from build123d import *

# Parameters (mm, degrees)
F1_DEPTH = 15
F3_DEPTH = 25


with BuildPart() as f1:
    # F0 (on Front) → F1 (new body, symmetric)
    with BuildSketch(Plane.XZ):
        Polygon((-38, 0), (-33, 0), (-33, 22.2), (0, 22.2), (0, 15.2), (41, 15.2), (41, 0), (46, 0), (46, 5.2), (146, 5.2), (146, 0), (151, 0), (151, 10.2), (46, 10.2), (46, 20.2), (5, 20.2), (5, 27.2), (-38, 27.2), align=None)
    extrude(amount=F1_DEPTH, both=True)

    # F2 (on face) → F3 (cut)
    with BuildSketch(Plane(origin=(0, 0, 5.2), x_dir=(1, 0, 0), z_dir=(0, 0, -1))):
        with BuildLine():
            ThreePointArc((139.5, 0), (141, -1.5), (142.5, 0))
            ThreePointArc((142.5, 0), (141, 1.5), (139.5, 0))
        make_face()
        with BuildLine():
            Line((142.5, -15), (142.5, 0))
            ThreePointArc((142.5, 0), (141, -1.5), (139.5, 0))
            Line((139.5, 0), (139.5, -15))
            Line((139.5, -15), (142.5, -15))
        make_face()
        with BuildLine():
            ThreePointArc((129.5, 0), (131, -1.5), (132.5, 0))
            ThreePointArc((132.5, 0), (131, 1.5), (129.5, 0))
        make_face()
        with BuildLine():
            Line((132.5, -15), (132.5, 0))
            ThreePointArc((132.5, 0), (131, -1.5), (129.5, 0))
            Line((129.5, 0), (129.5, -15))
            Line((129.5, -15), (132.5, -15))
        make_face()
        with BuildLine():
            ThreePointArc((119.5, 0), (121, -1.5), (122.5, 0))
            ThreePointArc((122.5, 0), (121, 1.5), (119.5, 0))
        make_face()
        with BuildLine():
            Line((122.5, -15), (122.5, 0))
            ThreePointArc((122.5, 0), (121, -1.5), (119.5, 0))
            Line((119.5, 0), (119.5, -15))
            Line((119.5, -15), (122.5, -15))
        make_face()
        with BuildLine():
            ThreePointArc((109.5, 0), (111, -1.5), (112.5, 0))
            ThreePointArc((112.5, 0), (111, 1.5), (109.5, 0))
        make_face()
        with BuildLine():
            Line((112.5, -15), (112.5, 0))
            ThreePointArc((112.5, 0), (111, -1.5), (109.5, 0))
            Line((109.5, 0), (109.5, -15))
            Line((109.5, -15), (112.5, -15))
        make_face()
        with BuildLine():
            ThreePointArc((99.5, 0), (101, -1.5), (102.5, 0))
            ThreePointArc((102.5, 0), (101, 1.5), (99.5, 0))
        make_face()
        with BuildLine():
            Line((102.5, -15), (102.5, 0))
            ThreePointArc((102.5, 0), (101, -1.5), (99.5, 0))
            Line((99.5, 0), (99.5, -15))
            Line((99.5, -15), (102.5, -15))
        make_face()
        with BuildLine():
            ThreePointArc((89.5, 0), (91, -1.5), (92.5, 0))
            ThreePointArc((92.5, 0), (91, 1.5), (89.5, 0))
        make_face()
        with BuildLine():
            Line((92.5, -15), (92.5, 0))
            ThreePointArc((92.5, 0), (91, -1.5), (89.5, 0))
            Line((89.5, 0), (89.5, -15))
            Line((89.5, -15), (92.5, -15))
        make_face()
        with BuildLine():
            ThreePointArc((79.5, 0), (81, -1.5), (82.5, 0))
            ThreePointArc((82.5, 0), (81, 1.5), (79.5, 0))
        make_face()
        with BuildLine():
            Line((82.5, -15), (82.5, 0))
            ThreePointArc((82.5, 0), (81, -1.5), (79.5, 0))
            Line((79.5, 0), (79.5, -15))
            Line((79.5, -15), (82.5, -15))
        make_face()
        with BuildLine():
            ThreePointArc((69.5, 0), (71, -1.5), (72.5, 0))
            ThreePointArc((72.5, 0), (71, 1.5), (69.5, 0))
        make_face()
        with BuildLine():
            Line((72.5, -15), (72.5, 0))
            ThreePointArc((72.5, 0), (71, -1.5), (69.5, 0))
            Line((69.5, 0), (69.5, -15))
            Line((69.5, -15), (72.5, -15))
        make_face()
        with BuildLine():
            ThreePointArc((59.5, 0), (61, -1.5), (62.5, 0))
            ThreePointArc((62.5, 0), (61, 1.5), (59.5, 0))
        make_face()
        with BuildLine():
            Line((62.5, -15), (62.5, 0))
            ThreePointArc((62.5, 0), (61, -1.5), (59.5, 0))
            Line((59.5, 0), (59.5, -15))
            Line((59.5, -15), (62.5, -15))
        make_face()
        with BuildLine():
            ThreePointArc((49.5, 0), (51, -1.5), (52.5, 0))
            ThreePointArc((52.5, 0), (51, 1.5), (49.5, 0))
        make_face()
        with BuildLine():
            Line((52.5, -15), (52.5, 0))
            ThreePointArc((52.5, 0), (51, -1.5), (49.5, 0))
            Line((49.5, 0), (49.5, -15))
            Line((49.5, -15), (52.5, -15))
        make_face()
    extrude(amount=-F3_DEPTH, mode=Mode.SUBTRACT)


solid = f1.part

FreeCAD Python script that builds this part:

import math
import FreeCAD as App
import Part
import Sketcher
from FreeCAD import Vector

doc = App.newDocument("Part")
body = doc.addObject("PartDesign::Body", "Body")

sketch1 = body.newObject("Sketcher::SketchObject", "Sketch")
sketch1.AttachmentSupport = (doc.getObject("XZ_Plane"), [""])
sketch1.MapMode = "FlatFace"
sketch1.addGeometry(Part.LineSegment(Vector(-38, 0, 0), Vector(-33, 0, 0)), False)
sketch1.addGeometry(Part.LineSegment(Vector(-33, 0, 0), Vector(-33, 22, 0)), False)
sketch1.addGeometry(Part.LineSegment(Vector(-33, 22, 0), Vector(0, 22, 0)), False)
sketch1.addGeometry(Part.LineSegment(Vector(0, 22, 0), Vector(0, 15, 0)), False)
sketch1.addGeometry(Part.LineSegment(Vector(0, 15, 0), Vector(41, 15, 0)), False)
sketch1.addGeometry(Part.LineSegment(Vector(41, 15, 0), Vector(41, 0, 0)), False)
sketch1.addGeometry(Part.LineSegment(Vector(41, 0, 0), Vector(46, 0, 0)), False)
sketch1.addGeometry(Part.LineSegment(Vector(46, 0, 0), Vector(46, 5, 0)), False)
sketch1.addGeometry(Part.LineSegment(Vector(46, 5, 0), Vector(146, 5, 0)), False)
sketch1.addGeometry(Part.LineSegment(Vector(146, 5, 0), Vector(146, 0, 0)), False)
sketch1.addGeometry(Part.LineSegment(Vector(146, 0, 0), Vector(151, 0, 0)), False)
sketch1.addGeometry(Part.LineSegment(Vector(151, 0, 0), Vector(151, 10, 0)), False)
sketch1.addGeometry(Part.LineSegment(Vector(151, 10, 0), Vector(46, 10, 0)), False)
sketch1.addGeometry(Part.LineSegment(Vector(46, 10, 0), Vector(46, 20, 0)), False)
sketch1.addGeometry(Part.LineSegment(Vector(46, 20, 0), Vector(5, 20, 0)), False)
sketch1.addGeometry(Part.LineSegment(Vector(5, 20, 0), Vector(5, 27, 0)), False)
sketch1.addGeometry(Part.LineSegment(Vector(5, 27, 0), Vector(-38, 27, 0)), False)
sketch1.addGeometry(Part.LineSegment(Vector(-38, 27, 0), Vector(-38, 0, 0)), False)
sketch1.addConstraint(Sketcher.Constraint("Coincident", 0, 2, 1, 1))
sketch1.addConstraint(Sketcher.Constraint("Coincident", 1, 2, 2, 1))
sketch1.addConstraint(Sketcher.Constraint("Coincident", 2, 2, 3, 1))
sketch1.addConstraint(Sketcher.Constraint("Coincident", 3, 2, 4, 1))
sketch1.addConstraint(Sketcher.Constraint("Coincident", 4, 2, 5, 1))
sketch1.addConstraint(Sketcher.Constraint("Coincident", 5, 2, 6, 1))
sketch1.addConstraint(Sketcher.Constraint("Coincident", 6, 2, 7, 1))
sketch1.addConstraint(Sketcher.Constraint("Coincident", 7, 2, 8, 1))
sketch1.addConstraint(Sketcher.Constraint("Coincident", 8, 2, 9, 1))
sketch1.addConstraint(Sketcher.Constraint("Coincident", 9, 2, 10, 1))
sketch1.addConstraint(Sketcher.Constraint("Coincident", 10, 2, 11, 1))
sketch1.addConstraint(Sketcher.Constraint("Coincident", 11, 2, 12, 1))
sketch1.addConstraint(Sketcher.Constraint("Coincident", 12, 2, 13, 1))
sketch1.addConstraint(Sketcher.Constraint("Coincident", 13, 2, 14, 1))
sketch1.addConstraint(Sketcher.Constraint("Coincident", 14, 2, 15, 1))
sketch1.addConstraint(Sketcher.Constraint("Coincident", 15, 2, 16, 1))
sketch1.addConstraint(Sketcher.Constraint("Coincident", 16, 2, 17, 1))
sketch1.addConstraint(Sketcher.Constraint("Coincident", 17, 2, 0, 1))
sketch1.addConstraint(Sketcher.Constraint("Horizontal", 0))
sketch1.addConstraint(Sketcher.Constraint("Vertical", 1))
sketch1.addConstraint(Sketcher.Constraint("Horizontal", 2))
sketch1.addConstraint(Sketcher.Constraint("Vertical", 3))
sketch1.addConstraint(Sketcher.Constraint("Horizontal", 4))
sketch1.addConstraint(Sketcher.Constraint("Vertical", 5))
sketch1.addConstraint(Sketcher.Constraint("Horizontal", 6))
sketch1.addConstraint(Sketcher.Constraint("Vertical", 7))
sketch1.addConstraint(Sketcher.Constraint("Horizontal", 8))
sketch1.addConstraint(Sketcher.Constraint("Vertical", 9))
sketch1.addConstraint(Sketcher.Constraint("Horizontal", 10))
sketch1.addConstraint(Sketcher.Constraint("Vertical", 11))
sketch1.addConstraint(Sketcher.Constraint("Horizontal", 12))
sketch1.addConstraint(Sketcher.Constraint("Vertical", 13))
sketch1.addConstraint(Sketcher.Constraint("Horizontal", 14))
sketch1.addConstraint(Sketcher.Constraint("Vertical", 15))
sketch1.addConstraint(Sketcher.Constraint("Horizontal", 16))
sketch1.addConstraint(Sketcher.Constraint("Vertical", 17))
sketch1.addConstraint(Sketcher.Constraint("PointOnObject", 0, 2, -1))
sketch1.addConstraint(Sketcher.Constraint("PointOnObject", 2, 2, -2))
sketch1.addConstraint(Sketcher.Constraint("PointOnObject", 5, 2, -1))
sketch1.addConstraint(Sketcher.Constraint("PointOnObject", 9, 2, -1))
sketch1.addConstraint(Sketcher.Constraint("Vertical", 7, 2, 12, 2))
sketch1.addConstraint(Sketcher.Constraint("Equal", 0, 6))
sketch1.addConstraint(Sketcher.Constraint("Equal", 6, 10))
sketch1.addConstraint(Sketcher.Constraint("Equal", 4, 14))
sketch1.addConstraint(Sketcher.Constraint("Equal", 3, 15))
sketch1.addConstraint(Sketcher.Constraint("DistanceX", 0, 1, 0, 2, 5.0))
sketch1.addConstraint(Sketcher.Constraint("DistanceX", 2, 1, 2, 2, 33.0))
sketch1.addConstraint(Sketcher.Constraint("DistanceX", 4, 1, 4, 2, 41.0))
sketch1.addConstraint(Sketcher.Constraint("DistanceX", 8, 1, 8, 2, 100.0))
sketch1.addConstraint(Sketcher.Constraint("DistanceY", 3, 2, 3, 1, 7.0))
sketch1.addConstraint(Sketcher.Constraint("DistanceY", 13, 1, 13, 2, 10.0))
sketch1.addConstraint(Sketcher.Constraint("DistanceY", 1, 1, 1, 2, 22.2))
sketch1.addConstraint(Sketcher.Constraint("DistanceY", 7, 1, 7, 2, 5.2))
sketch1.addConstraint(Sketcher.Constraint("DistanceY", 11, 1, 11, 2, 10.2))
pad1 = body.newObject("PartDesign::Pad", "Pad")
pad1.Profile = sketch1
pad1.Length = 30
pad1.Midplane = True

sketch2 = body.newObject("Sketcher::SketchObject", "Sketch001")
sketch2.AttachmentSupport = (doc.getObject("XY_Plane"), [""])
sketch2.MapMode = "FlatFace"
sketch2.AttachmentOffset = App.Placement(Vector(0, 0, 5.2), App.Rotation())
sketch2.addGeometry(Part.ArcOfCircle(Part.Circle(Vector(141, 0, 0), Vector(0, 0, 1), 1.5), math.radians(180), math.radians(360)), False)
sketch2.addGeometry(Part.LineSegment(Vector(139.5, 0, 0), Vector(139.5, 15, 0)), False)
sketch2.addGeometry(Part.LineSegment(Vector(139.5, 15, 0), Vector(142.5, 15, 0)), False)
sketch2.addGeometry(Part.LineSegment(Vector(142.5, 15, 0), Vector(142.5, 0, 0)), False)
sketch2.addGeometry(Part.ArcOfCircle(Part.Circle(Vector(131, 0, 0), Vector(0, 0, 1), 1.5), math.radians(180), math.radians(360)), False)
sketch2.addGeometry(Part.LineSegment(Vector(129.5, 0, 0), Vector(129.5, 15, 0)), False)
sketch2.addGeometry(Part.LineSegment(Vector(129.5, 15, 0), Vector(132.5, 15, 0)), False)
sketch2.addGeometry(Part.LineSegment(Vector(132.5, 15, 0), Vector(132.5, 0, 0)), False)
sketch2.addGeometry(Part.ArcOfCircle(Part.Circle(Vector(121, 0, 0), Vector(0, 0, 1), 1.5), math.radians(180), math.radians(360)), False)
sketch2.addGeometry(Part.LineSegment(Vector(119.5, 0, 0), Vector(119.5, 15, 0)), False)
sketch2.addGeometry(Part.LineSegment(Vector(119.5, 15, 0), Vector(122.5, 15, 0)), False)
sketch2.addGeometry(Part.LineSegment(Vector(122.5, 15, 0), Vector(122.5, 0, 0)), False)
sketch2.addGeometry(Part.ArcOfCircle(Part.Circle(Vector(111, 0, 0), Vector(0, 0, 1), 1.5), math.radians(180), math.radians(360)), False)
sketch2.addGeometry(Part.LineSegment(Vector(109.5, 0, 0), Vector(109.5, 15, 0)), False)
sketch2.addGeometry(Part.LineSegment(Vector(109.5, 15, 0), Vector(112.5, 15, 0)), False)
sketch2.addGeometry(Part.LineSegment(Vector(112.5, 15, 0), Vector(112.5, 0, 0)), False)
sketch2.addGeometry(Part.ArcOfCircle(Part.Circle(Vector(101, 0, 0), Vector(0, 0, 1), 1.5), math.radians(180), math.radians(360)), False)
sketch2.addGeometry(Part.LineSegment(Vector(99.5, 0, 0), Vector(99.5, 15, 0)), False)
sketch2.addGeometry(Part.LineSegment(Vector(99.5, 15, 0), Vector(102.5, 15, 0)), False)
sketch2.addGeometry(Part.LineSegment(Vector(102.5, 15, 0), Vector(102.5, 0, 0)), False)
sketch2.addGeometry(Part.ArcOfCircle(Part.Circle(Vector(91, 0, 0), Vector(0, 0, 1), 1.5), math.radians(180), math.radians(360)), False)
sketch2.addGeometry(Part.LineSegment(Vector(89.5, 0, 0), Vector(89.5, 15, 0)), False)
sketch2.addGeometry(Part.LineSegment(Vector(89.5, 15, 0), Vector(92.5, 15, 0)), False)
sketch2.addGeometry(Part.LineSegment(Vector(92.5, 15, 0), Vector(92.5, 0, 0)), False)
sketch2.addGeometry(Part.ArcOfCircle(Part.Circle(Vector(81, 0, 0), Vector(0, 0, 1), 1.5), math.radians(180), math.radians(360)), False)
sketch2.addGeometry(Part.LineSegment(Vector(79.5, 0, 0), Vector(79.5, 15, 0)), False)
sketch2.addGeometry(Part.LineSegment(Vector(79.5, 15, 0), Vector(82.5, 15, 0)), False)
sketch2.addGeometry(Part.LineSegment(Vector(82.5, 15, 0), Vector(82.5, 0, 0)), False)
sketch2.addGeometry(Part.ArcOfCircle(Part.Circle(Vector(71, 0, 0), Vector(0, 0, 1), 1.5), math.radians(180), math.radians(360)), False)
sketch2.addGeometry(Part.LineSegment(Vector(69.5, 0, 0), Vector(69.5, 15, 0)), False)
sketch2.addGeometry(Part.LineSegment(Vector(69.5, 15, 0), Vector(72.5, 15, 0)), False)
sketch2.addGeometry(Part.LineSegment(Vector(72.5, 15, 0), Vector(72.5, 0, 0)), False)
sketch2.addGeometry(Part.ArcOfCircle(Part.Circle(Vector(61, 0, 0), Vector(0, 0, 1), 1.5), math.radians(180), math.radians(360)), False)
sketch2.addGeometry(Part.LineSegment(Vector(59.5, 0, 0), Vector(59.5, 15, 0)), False)
sketch2.addGeometry(Part.LineSegment(Vector(59.5, 15, 0), Vector(62.5, 15, 0)), False)
sketch2.addGeometry(Part.LineSegment(Vector(62.5, 15, 0), Vector(62.5, 0, 0)), False)
sketch2.addGeometry(Part.ArcOfCircle(Part.Circle(Vector(51, 0, 0), Vector(0, 0, 1), 1.5), math.radians(180), math.radians(360)), False)
sketch2.addGeometry(Part.LineSegment(Vector(49.5, 0, 0), Vector(49.5, 15, 0)), False)
sketch2.addGeometry(Part.LineSegment(Vector(49.5, 15, 0), Vector(52.5, 15, 0)), False)
sketch2.addGeometry(Part.LineSegment(Vector(52.5, 15, 0), Vector(52.5, 0, 0)), False)
sketch2.addConstraint(Sketcher.Constraint("Tangent", 0, 1, 1, 1))
sketch2.addConstraint(Sketcher.Constraint("Coincident", 1, 2, 2, 1))
sketch2.addConstraint(Sketcher.Constraint("Coincident", 2, 2, 3, 1))
sketch2.addConstraint(Sketcher.Constraint("Tangent", 3, 2, 0, 2))
sketch2.addConstraint(Sketcher.Constraint("Tangent", 4, 1, 5, 1))
sketch2.addConstraint(Sketcher.Constraint("Coincident", 5, 2, 6, 1))
sketch2.addConstraint(Sketcher.Constraint("Coincident", 6, 2, 7, 1))
sketch2.addConstraint(Sketcher.Constraint("Tangent", 7, 2, 4, 2))
sketch2.addConstraint(Sketcher.Constraint("Tangent", 8, 1, 9, 1))
sketch2.addConstraint(Sketcher.Constraint("Coincident", 9, 2, 10, 1))
sketch2.addConstraint(Sketcher.Constraint("Coincident", 10, 2, 11, 1))
sketch2.addConstraint(Sketcher.Constraint("Tangent", 11, 2, 8, 2))
sketch2.addConstraint(Sketcher.Constraint("Tangent", 12, 1, 13, 1))
sketch2.addConstraint(Sketcher.Constraint("Coincident", 13, 2, 14, 1))
sketch2.addConstraint(Sketcher.Constraint("Coincident", 14, 2, 15, 1))
sketch2.addConstraint(Sketcher.Constraint("Tangent", 15, 2, 12, 2))
sketch2.addConstraint(Sketcher.Constraint("Tangent", 16, 1, 17, 1))
sketch2.addConstraint(Sketcher.Constraint("Coincident", 17, 2, 18, 1))
sketch2.addConstraint(Sketcher.Constraint("Coincident", 18, 2, 19, 1))
sketch2.addConstraint(Sketcher.Constraint("Tangent", 19, 2, 16, 2))
sketch2.addConstraint(Sketcher.Constraint("Tangent", 20, 1, 21, 1))
sketch2.addConstraint(Sketcher.Constraint("Coincident", 21, 2, 22, 1))
sketch2.addConstraint(Sketcher.Constraint("Coincident", 22, 2, 23, 1))
sketch2.addConstraint(Sketcher.Constraint("Tangent", 23, 2, 20, 2))
sketch2.addConstraint(Sketcher.Constraint("Tangent", 24, 1, 25, 1))
sketch2.addConstraint(Sketcher.Constraint("Coincident", 25, 2, 26, 1))
sketch2.addConstraint(Sketcher.Constraint("Coincident", 26, 2, 27, 1))
sketch2.addConstraint(Sketcher.Constraint("Tangent", 27, 2, 24, 2))
sketch2.addConstraint(Sketcher.Constraint("Tangent", 28, 1, 29, 1))
sketch2.addConstraint(Sketcher.Constraint("Coincident", 29, 2, 30, 1))
sketch2.addConstraint(Sketcher.Constraint("Coincident", 30, 2, 31, 1))
sketch2.addConstraint(Sketcher.Constraint("Tangent", 31, 2, 28, 2))
sketch2.addConstraint(Sketcher.Constraint("Tangent", 32, 1, 33, 1))
sketch2.addConstraint(Sketcher.Constraint("Coincident", 33, 2, 34, 1))
sketch2.addConstraint(Sketcher.Constraint("Coincident", 34, 2, 35, 1))
sketch2.addConstraint(Sketcher.Constraint("Tangent", 35, 2, 32, 2))
sketch2.addConstraint(Sketcher.Constraint("Tangent", 36, 1, 37, 1))
sketch2.addConstraint(Sketcher.Constraint("Coincident", 37, 2, 38, 1))
sketch2.addConstraint(Sketcher.Constraint("Coincident", 38, 2, 39, 1))
sketch2.addConstraint(Sketcher.Constraint("Tangent", 39, 2, 36, 2))
sketch2.addConstraint(Sketcher.Constraint("Vertical", 1))
sketch2.addConstraint(Sketcher.Constraint("Horizontal", 2))
sketch2.addConstraint(Sketcher.Constraint("Vertical", 3))
sketch2.addConstraint(Sketcher.Constraint("Vertical", 5))
sketch2.addConstraint(Sketcher.Constraint("Horizontal", 6))
sketch2.addConstraint(Sketcher.Constraint("Vertical", 7))
sketch2.addConstraint(Sketcher.Constraint("Vertical", 9))
sketch2.addConstraint(Sketcher.Constraint("Horizontal", 10))
sketch2.addConstraint(Sketcher.Constraint("Vertical", 11))
sketch2.addConstraint(Sketcher.Constraint("Vertical", 13))
sketch2.addConstraint(Sketcher.Constraint("Horizontal", 14))
sketch2.addConstraint(Sketcher.Constraint("Vertical", 15))
sketch2.addConstraint(Sketcher.Constraint("Vertical", 17))
sketch2.addConstraint(Sketcher.Constraint("Horizontal", 18))
sketch2.addConstraint(Sketcher.Constraint("Vertical", 19))
sketch2.addConstraint(Sketcher.Constraint("Vertical", 21))
sketch2.addConstraint(Sketcher.Constraint("Horizontal", 22))
sketch2.addConstraint(Sketcher.Constraint("Vertical", 23))
sketch2.addConstraint(Sketcher.Constraint("Vertical", 25))
sketch2.addConstraint(Sketcher.Constraint("Horizontal", 26))
sketch2.addConstraint(Sketcher.Constraint("Vertical", 27))
sketch2.addConstraint(Sketcher.Constraint("Vertical", 29))
sketch2.addConstraint(Sketcher.Constraint("Horizontal", 30))
sketch2.addConstraint(Sketcher.Constraint("Vertical", 31))
sketch2.addConstraint(Sketcher.Constraint("Vertical", 33))
sketch2.addConstraint(Sketcher.Constraint("Horizontal", 34))
sketch2.addConstraint(Sketcher.Constraint("Vertical", 35))
sketch2.addConstraint(Sketcher.Constraint("Vertical", 37))
sketch2.addConstraint(Sketcher.Constraint("Horizontal", 38))
sketch2.addConstraint(Sketcher.Constraint("Vertical", 39))
sketch2.addConstraint(Sketcher.Constraint("Equal", 0, 4))
sketch2.addConstraint(Sketcher.Constraint("Equal", 4, 8))
sketch2.addConstraint(Sketcher.Constraint("Equal", 8, 12))
sketch2.addConstraint(Sketcher.Constraint("Equal", 12, 16))
sketch2.addConstraint(Sketcher.Constraint("Equal", 16, 20))
sketch2.addConstraint(Sketcher.Constraint("Equal", 20, 24))
sketch2.addConstraint(Sketcher.Constraint("Equal", 24, 28))
sketch2.addConstraint(Sketcher.Constraint("Equal", 28, 32))
sketch2.addConstraint(Sketcher.Constraint("Equal", 32, 36))
sketch2.addConstraint(Sketcher.Constraint("PointOnObject", 0, 3, -1))
sketch2.addConstraint(Sketcher.Constraint("PointOnObject", 4, 3, -1))
sketch2.addConstraint(Sketcher.Constraint("PointOnObject", 8, 3, -1))
sketch2.addConstraint(Sketcher.Constraint("PointOnObject", 12, 3, -1))
sketch2.addConstraint(Sketcher.Constraint("PointOnObject", 16, 3, -1))
sketch2.addConstraint(Sketcher.Constraint("PointOnObject", 20, 3, -1))
sketch2.addConstraint(Sketcher.Constraint("PointOnObject", 24, 3, -1))
sketch2.addConstraint(Sketcher.Constraint("PointOnObject", 28, 3, -1))
sketch2.addConstraint(Sketcher.Constraint("PointOnObject", 32, 3, -1))
sketch2.addConstraint(Sketcher.Constraint("PointOnObject", 36, 3, -1))
sketch2.addConstraint(Sketcher.Constraint("Horizontal", 2, 2, 5, 2))
sketch2.addConstraint(Sketcher.Constraint("Horizontal", 6, 2, 9, 2))
sketch2.addConstraint(Sketcher.Constraint("Horizontal", 10, 2, 13, 2))
sketch2.addConstraint(Sketcher.Constraint("Horizontal", 14, 2, 17, 2))
sketch2.addConstraint(Sketcher.Constraint("Horizontal", 18, 2, 21, 2))
sketch2.addConstraint(Sketcher.Constraint("Horizontal", 22, 2, 25, 2))
sketch2.addConstraint(Sketcher.Constraint("Horizontal", 26, 2, 29, 2))
sketch2.addConstraint(Sketcher.Constraint("Horizontal", 30, 2, 33, 2))
sketch2.addConstraint(Sketcher.Constraint("Horizontal", 34, 2, 37, 2))
sketch2.addConstraint(Sketcher.Constraint("Radius", 0, 1.5))
sketch2.addConstraint(Sketcher.Constraint("DistanceY", 1, 1, 1, 2, 15.0))
sketch2.addConstraint(Sketcher.Constraint("DistanceX", -1, 1, 0, 3, 141.0))
sketch2.addConstraint(Sketcher.Constraint("DistanceX", -1, 1, 4, 3, 131.0))
sketch2.addConstraint(Sketcher.Constraint("DistanceX", -1, 1, 8, 3, 121.0))
sketch2.addConstraint(Sketcher.Constraint("DistanceX", -1, 1, 12, 3, 111.0))
sketch2.addConstraint(Sketcher.Constraint("DistanceX", -1, 1, 16, 3, 101.0))
sketch2.addConstraint(Sketcher.Constraint("DistanceX", -1, 1, 20, 3, 91.0))
sketch2.addConstraint(Sketcher.Constraint("DistanceX", -1, 1, 24, 3, 81.0))
sketch2.addConstraint(Sketcher.Constraint("DistanceX", -1, 1, 28, 3, 71.0))
sketch2.addConstraint(Sketcher.Constraint("DistanceX", -1, 1, 32, 3, 61.0))
sketch2.addConstraint(Sketcher.Constraint("DistanceX", -1, 1, 36, 3, 51.0))
pocket1 = body.newObject("PartDesign::Pocket", "Pocket")
pocket1.Profile = sketch2
pocket1.Length = 25
pocket1.Reversed = True

doc.recompute()
